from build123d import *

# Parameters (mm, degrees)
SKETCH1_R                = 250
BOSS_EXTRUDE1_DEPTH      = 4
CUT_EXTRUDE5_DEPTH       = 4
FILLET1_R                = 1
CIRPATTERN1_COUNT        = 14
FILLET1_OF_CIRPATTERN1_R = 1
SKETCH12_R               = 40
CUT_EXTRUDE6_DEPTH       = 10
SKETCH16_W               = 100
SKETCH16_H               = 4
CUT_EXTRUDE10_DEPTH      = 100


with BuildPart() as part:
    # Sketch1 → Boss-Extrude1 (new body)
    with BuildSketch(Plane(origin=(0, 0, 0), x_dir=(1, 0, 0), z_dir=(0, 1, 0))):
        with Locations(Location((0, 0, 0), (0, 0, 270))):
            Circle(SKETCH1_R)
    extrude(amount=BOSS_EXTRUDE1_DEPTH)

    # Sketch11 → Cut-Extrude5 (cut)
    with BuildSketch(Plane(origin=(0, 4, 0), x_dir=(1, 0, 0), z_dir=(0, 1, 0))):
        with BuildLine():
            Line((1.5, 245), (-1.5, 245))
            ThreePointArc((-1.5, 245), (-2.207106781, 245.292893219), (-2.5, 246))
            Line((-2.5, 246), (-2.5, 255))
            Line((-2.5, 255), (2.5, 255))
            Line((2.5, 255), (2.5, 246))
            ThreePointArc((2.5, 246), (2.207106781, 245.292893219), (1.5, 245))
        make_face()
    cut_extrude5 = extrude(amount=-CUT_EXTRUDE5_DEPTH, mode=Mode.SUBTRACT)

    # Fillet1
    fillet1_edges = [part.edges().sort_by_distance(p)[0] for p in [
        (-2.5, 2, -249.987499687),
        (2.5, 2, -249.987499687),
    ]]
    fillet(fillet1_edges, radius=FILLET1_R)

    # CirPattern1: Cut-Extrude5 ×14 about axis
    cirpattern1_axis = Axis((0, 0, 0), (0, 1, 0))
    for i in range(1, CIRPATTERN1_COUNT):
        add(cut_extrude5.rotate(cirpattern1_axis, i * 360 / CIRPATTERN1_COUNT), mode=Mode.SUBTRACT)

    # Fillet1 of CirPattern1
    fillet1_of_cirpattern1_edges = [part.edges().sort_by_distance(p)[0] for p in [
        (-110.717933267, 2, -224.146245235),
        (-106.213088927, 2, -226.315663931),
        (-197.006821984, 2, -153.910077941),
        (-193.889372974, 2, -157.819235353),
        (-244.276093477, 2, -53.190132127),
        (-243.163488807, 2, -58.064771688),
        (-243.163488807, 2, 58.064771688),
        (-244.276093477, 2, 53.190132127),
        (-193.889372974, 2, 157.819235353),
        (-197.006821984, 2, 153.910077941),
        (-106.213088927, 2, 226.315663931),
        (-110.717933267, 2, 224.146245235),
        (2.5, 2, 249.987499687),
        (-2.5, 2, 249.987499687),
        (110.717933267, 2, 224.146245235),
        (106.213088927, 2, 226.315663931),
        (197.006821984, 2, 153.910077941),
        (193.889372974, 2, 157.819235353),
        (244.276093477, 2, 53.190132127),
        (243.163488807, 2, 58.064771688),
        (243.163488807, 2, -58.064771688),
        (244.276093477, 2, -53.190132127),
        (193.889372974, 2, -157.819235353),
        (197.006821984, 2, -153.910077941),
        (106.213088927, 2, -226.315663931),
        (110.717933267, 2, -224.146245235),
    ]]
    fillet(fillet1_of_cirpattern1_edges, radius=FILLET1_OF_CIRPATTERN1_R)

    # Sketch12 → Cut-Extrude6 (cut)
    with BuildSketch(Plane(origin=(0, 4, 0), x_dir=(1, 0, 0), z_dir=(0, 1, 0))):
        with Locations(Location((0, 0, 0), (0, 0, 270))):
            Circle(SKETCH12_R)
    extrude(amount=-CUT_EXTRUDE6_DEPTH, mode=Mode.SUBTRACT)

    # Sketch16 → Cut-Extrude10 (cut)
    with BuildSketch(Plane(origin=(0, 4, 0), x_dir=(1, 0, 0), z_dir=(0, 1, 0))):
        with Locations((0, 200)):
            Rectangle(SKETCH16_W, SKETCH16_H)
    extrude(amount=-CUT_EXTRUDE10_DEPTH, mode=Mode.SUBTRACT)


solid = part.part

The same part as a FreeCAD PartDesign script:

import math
import FreeCAD as App
import Part
import Sketcher


def edges_at(feature, points):
    """Names of the edges that pass closest to the given points."""
    edges = feature.Shape.Edges
    near = lambda p: min(range(len(edges)), key=lambda i: edges[i].distToShape(Part.Vertex(*p))[0])
    return sorted({f"Edge{near(p) + 1}" for p in points})


def add_polygon(sketch, points):
    """Adds a closed chain of lines whose ends are joined by coincident constraints."""
    first, n = sketch.GeometryCount, len(points)
    for a, b in zip(points, points[1:] + points[:1]):
        sketch.addGeometry(Part.LineSegment(App.Vector(*a, 0), App.Vector(*b, 0)), False)
    for i in range(n):
        sketch.addConstraint(Sketcher.Constraint("Coincident", first + i, 2, first + (i + 1) % n, 1))

doc = App.newDocument("Part")
params = doc.addObject("Spreadsheet::Sheet", "Params")
for row, (alias, value) in enumerate([
    ("sketch1_diameter", "500 mm"),
    ("pad1_length", "4 mm"),
    ("sketch2_radius", "1 mm"),
    ("sketch2_width", "3 mm"),
    ("sketch2_height", "9 mm"),
    ("pocket1_length", "4 mm"),
    ("fillet_radius", "1 mm"),
    ("fillet2_radius", "1 mm"),
    ("sketch3_diameter", "80 mm"),
    ("pocket2_length", "10 mm"),
    ("sketch4_width", "100 mm"),
    ("sketch4_height", "4 mm"),
    ("pocket3_length", "100 mm"),
], start=1):
    params.set(f"A{row}", alias)
    params.set(f"B{row}", "=" + value)
    params.setAlias(f"B{row}", alias)

body = doc.addObject("PartDesign::Body", "Body")

# Sketch on XZ plane
sketch1 = body.newObject("Sketcher::SketchObject", "Sketch")
sketch1.AttachmentSupport = (doc.getObject("XZ_Plane"), [""])
sketch1.MapMode = "FlatFace"
sketch1.addGeometry(Part.Circle(App.Vector(0, 0, 0), App.Vector(0, 0, 1), 250), False)
sketch1.addConstraint([
    Sketcher.Constraint("Coincident", 0, 3, -1, 1),
    Sketcher.Constraint("Diameter", 0, 500.0),
])
sketch1.setExpression("Constraints[1]", "Params.sketch1_diameter")
pad1 = body.newObject("PartDesign::Pad", "Pad")
pad1.Profile = sketch1
pad1.setExpression("Length", "Params.pad1_length")
pad1.Reversed = True

# Sketch on XZ plane
sketch2 = body.newObject("Sketcher::SketchObject", "Sketch001")
sketch2.AttachmentSupport = (doc.getObject("XZ_Plane"), [""])
sketch2.MapMode = "FlatFace"
sketch2.AttachmentOffset = App.Placement(App.Vector(0, 0, -4), App.Rotation())
sketch2.addGeometry([
    Part.LineSegment(App.Vector(-1.5, -245, 0), App.Vector(1.5, -245, 0)),  # 0
    Part.ArcOfCircle(Part.Circle(App.Vector(1.5, -246, 0), App.Vector(0, 0, 1), 1), math.radians(0), math.radians(90)),  # 1
    Part.LineSegment(App.Vector(2.5, -246, 0), App.Vector(2.5, -255, 0)),  # 2
    Part.LineSegment(App.Vector(2.5, -255, 0), App.Vector(-2.5, -255, 0)),  # 3
    Part.LineSegment(App.Vector(-2.5, -255, 0), App.Vector(-2.5, -246, 0)),  # 4
    Part.ArcOfCircle(Part.Circle(App.Vector(-1.5, -246, 0), App.Vector(0, 0, 1), 1), math.radians(90), math.radians(180)),  # 5
], False)
sketch2.addConstraint([
    Sketcher.Constraint("Tangent", 0, 2, 1, 2),
    Sketcher.Constraint("Tangent", 1, 1, 2, 1),
    Sketcher.Constraint("Coincident", 2, 2, 3, 1),
    Sketcher.Constraint("Coincident", 3, 2, 4, 1),
    Sketcher.Constraint("Tangent", 4, 2, 5, 2),
    Sketcher.Constraint("Tangent", 5, 1, 0, 1),
    Sketcher.Constraint("Horizontal", 0),
    Sketcher.Constraint("Vertical", 2),
    Sketcher.Constraint("Horizontal", 3),
    Sketcher.Constraint("Vertical", 4),
    Sketcher.Constraint("Equal", 1, 5),
    Sketcher.Constraint("Radius", 1, 1.0),
    Sketcher.Constraint("DistanceX", 0, 1, 0, 2, 3.0),
    Sketcher.Constraint("DistanceY", 2, 2, 2, 1, 9.0),
    Sketcher.Constraint("DistanceY", 1, 3, -1, 1, 246.0),
    Sketcher.Constraint("DistanceX", -1, 1, 1, 3, 1.5),
])
sketch2.setExpression("Constraints[11]", "Params.sketch2_radius")
sketch2.setExpression("Constraints[12]", "Params.sketch2_width")
sketch2.setExpression("Constraints[13]", "Params.sketch2_height")
pocket1 = body.newObject("PartDesign::Pocket", "Pocket")
pocket1.Profile = sketch2
pocket1.setExpression("Length", "Params.pocket1_length")
pocket1.Reversed = True
doc.recompute()

fillet = body.newObject("PartDesign::Fillet", "Fillet")
fillet.Base = (pocket1, edges_at(pocket1, [(-2.5, 2, -249.987), (2.5, 2, -249.987)]))
fillet.setExpression("Radius", "Params.fillet_radius")
doc.recompute()

polarpattern = body.newObject("PartDesign::PolarPattern", "PolarPattern")
polarpattern.Originals = [pocket1]
polarpattern.Axis = (doc.getObject("Y_Axis"), [""])
polarpattern.Angle = 360
polarpattern.Occurrences = 14
body.Tip = polarpattern
doc.recompute()

fillet2 = body.newObject("PartDesign::Fillet", "Fillet001")
fillet2.Base = (polarpattern, edges_at(polarpattern, [
    (-110.718, 2, -224.146),
    (-106.213, 2, -226.316),
    (-197.007, 2, -153.91),
    (-193.889, 2, -157.819),
    (-244.276, 2, -53.19),
    (-243.163, 2, -58.065),
    (-243.163, 2, 58.065),
    (-244.276, 2, 53.19),
    (-193.889, 2, 157.819),
    (-197.007, 2, 153.91),
    (-106.213, 2, 226.316),
    (-110.718, 2, 224.146),
    (2.5, 2, 249.987),
    (-2.5, 2, 249.987),
    (110.718, 2, 224.146),
    (106.213, 2, 226.316),
    (197.007, 2, 153.91),
    (193.889, 2, 157.819),
    (244.276, 2, 53.19),
    (243.163, 2, 58.065),
    (243.163, 2, -58.065),
    (244.276, 2, -53.19),
    (193.889, 2, -157.819),
    (197.007, 2, -153.91),
    (106.213, 2, -226.316),
    (110.718, 2, -224.146),
]))
fillet2.setExpression("Radius", "Params.fillet2_radius")

# Sketch on XZ plane
sketch3 = body.newObject("Sketcher::SketchObject", "Sketch002")
sketch3.AttachmentSupport = (doc.getObject("XZ_Plane"), [""])
sketch3.MapMode = "FlatFace"
sketch3.AttachmentOffset = App.Placement(App.Vector(0, 0, -4), App.Rotation())
sketch3.addGeometry(Part.Circle(App.Vector(0, 0, 0), App.Vector(0, 0, 1), 40), False)
sketch3.addConstraint([
    Sketcher.Constraint("Coincident", 0, 3, -1, 1),
    Sketcher.Constraint("Diameter", 0, 80.0),
])
sketch3.setExpression("Constraints[1]", "Params.sketch3_diameter")
pocket2 = body.newObject("PartDesign::Pocket", "Pocket001")
pocket2.Profile = sketch3
pocket2.setExpression("Length", "Params.pocket2_length")
pocket2.Reversed = True

# Sketch on XZ plane
sketch4 = body.newObject("Sketcher::SketchObject", "Sketch003")
sketch4.AttachmentSupport = (doc.getObject("XZ_Plane"), [""])
sketch4.MapMode = "FlatFace"
sketch4.AttachmentOffset = App.Placement(App.Vector(0, 0, -4), App.Rotation())
add_polygon(sketch4, [(-50, -202), (-50, -198), (50, -198), (50, -202)])  # lines 0-3
sketch4.addConstraint([
    Sketcher.Constraint("Vertical", 0),
    Sketcher.Constraint("Horizontal", 1),
    Sketcher.Constraint("Vertical", 2),
    Sketcher.Constraint("Horizontal", 3),
    Sketcher.Constraint("DistanceX", 1, 1, 1, 2, 100.0),
    Sketcher.Constraint("DistanceY", 0, 1, 0, 2, 4.0),
    Sketcher.Constraint("DistanceX", 0, 2, -1, 1, 50.0),
    Sketcher.Constraint("DistanceY", 0, 2, -1, 1, 198.0),
])
sketch4.setExpression("Constraints[8]", "Params.sketch4_width")
sketch4.setExpression("Constraints[9]", "Params.sketch4_height")
pocket3 = body.newObject("PartDesign::Pocket", "Pocket002")
pocket3.Profile = sketch4
pocket3.setExpression("Length", "Params.pocket3_length")
pocket3.Reversed = True

doc.recompute()
